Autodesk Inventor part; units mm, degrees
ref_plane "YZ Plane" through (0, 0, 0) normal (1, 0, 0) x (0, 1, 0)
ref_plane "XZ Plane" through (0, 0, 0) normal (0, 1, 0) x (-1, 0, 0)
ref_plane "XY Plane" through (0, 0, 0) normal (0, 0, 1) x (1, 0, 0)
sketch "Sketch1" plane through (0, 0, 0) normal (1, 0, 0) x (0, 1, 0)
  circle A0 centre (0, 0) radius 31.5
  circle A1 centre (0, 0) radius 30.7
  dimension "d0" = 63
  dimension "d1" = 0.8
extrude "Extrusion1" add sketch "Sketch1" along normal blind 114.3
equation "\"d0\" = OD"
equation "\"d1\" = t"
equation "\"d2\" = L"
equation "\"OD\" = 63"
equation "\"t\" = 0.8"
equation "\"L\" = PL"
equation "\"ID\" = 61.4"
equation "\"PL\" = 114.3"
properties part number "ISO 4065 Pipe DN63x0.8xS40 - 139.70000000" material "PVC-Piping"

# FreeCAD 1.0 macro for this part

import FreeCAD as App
import Part
import Sketcher

V = App.Vector

doc = App.newDocument("Part")
body = doc.addObject("PartDesign::Body", "Body")

sketch1 = body.newObject("Sketcher::SketchObject", "Sketch")
sketch1.AttachmentSupport = (doc.getObject("YZ_Plane"), [""])
sketch1.MapMode = "FlatFace"
sketch1.addGeometry([
    Part.Circle(V(0, 0, 0), V(0, 0, 1), 31.5),
    Part.Circle(V(0, 0, 0), V(0, 0, 1), 30.7),
], False)
sketch1.addConstraint([
    Sketcher.Constraint("Coincident", 0, 3, -1, 1),
    Sketcher.Constraint("Coincident", 1, 3, -1, 1),
    Sketcher.Constraint("Diameter", 0, 63.0),
    Sketcher.Constraint("Diameter", 1, 61.4),
])
pad1 = body.newObject("PartDesign::Pad", "Pad")
pad1.Profile = sketch1
pad1.Length = 114.3

doc.recompute()
